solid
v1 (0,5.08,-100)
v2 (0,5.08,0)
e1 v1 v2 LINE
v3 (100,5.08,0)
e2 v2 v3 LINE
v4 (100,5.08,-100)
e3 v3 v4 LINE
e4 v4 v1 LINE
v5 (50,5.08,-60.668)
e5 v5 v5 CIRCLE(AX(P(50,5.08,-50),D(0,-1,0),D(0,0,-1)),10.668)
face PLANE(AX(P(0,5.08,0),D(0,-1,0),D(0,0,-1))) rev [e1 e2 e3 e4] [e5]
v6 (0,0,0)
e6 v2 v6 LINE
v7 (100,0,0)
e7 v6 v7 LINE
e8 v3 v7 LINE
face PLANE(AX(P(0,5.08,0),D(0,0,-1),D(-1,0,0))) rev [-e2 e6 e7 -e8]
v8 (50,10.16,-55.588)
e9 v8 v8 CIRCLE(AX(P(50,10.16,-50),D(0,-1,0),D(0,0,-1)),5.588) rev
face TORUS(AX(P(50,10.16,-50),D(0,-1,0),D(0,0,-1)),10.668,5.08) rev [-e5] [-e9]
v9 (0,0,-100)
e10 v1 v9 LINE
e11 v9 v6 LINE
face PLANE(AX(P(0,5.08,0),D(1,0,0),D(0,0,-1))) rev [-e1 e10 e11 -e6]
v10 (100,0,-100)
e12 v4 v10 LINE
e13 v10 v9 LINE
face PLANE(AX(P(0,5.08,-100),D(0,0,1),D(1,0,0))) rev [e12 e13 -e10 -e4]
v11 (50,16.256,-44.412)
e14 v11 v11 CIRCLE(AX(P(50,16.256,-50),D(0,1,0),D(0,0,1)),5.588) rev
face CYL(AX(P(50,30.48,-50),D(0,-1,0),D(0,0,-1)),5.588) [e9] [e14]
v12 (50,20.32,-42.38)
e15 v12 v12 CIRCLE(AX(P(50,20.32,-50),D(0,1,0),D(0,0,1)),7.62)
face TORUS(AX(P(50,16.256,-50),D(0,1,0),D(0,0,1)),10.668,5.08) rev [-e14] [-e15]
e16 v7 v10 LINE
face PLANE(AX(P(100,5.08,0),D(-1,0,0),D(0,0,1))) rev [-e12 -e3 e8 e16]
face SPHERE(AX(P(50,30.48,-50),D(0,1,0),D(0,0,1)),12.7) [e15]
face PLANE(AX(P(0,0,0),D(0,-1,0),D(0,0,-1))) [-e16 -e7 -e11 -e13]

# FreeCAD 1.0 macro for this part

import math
import FreeCAD as App
import Part
import Sketcher
Q = App.Units.Quantity


def edges_at(feature, points):
    """Names of the edges that pass closest to the given points."""
    edges = feature.Shape.Edges
    near = lambda p: min(range(len(edges)), key=lambda i: edges[i].distToShape(Part.Vertex(*p))[0])
    return sorted({f"Edge{near(p) + 1}" for p in points})

doc = App.newDocument("Part")
body = doc.addObject("PartDesign::Body", "Body")

sketch1 = body.newObject("Sketcher::SketchObject", "Sketch")
sketch1.AttachmentSupport = (doc.getObject("XZ_Plane"), [""])
sketch1.MapMode = "FlatFace"
sketch1.addGeometry([
    Part.LineSegment(App.Vector(0, -100, 0), App.Vector(0, 0, 0)),
    Part.LineSegment(App.Vector(0, 0, 0), App.Vector(100, 0, 0)),
    Part.LineSegment(App.Vector(100, 0, 0), App.Vector(100, -100, 0)),
    Part.LineSegment(App.Vector(100, -100, 0), App.Vector(0, -100, 0)),
], False)
sketch1.addConstraint([
    Sketcher.Constraint("Coincident", 0, 2, 1, 1),
    Sketcher.Constraint("Coincident", 1, 2, 2, 1),
    Sketcher.Constraint("Coincident", 2, 2, 3, 1),
    Sketcher.Constraint("Coincident", 3, 2, 0, 1),
    Sketcher.Constraint("Vertical", 0),
    Sketcher.Constraint("Horizontal", 1),
    Sketcher.Constraint("Vertical", 2),
    Sketcher.Constraint("Horizontal", 3),
    Sketcher.Constraint("Coincident", 0, 2, -1, 1),
    Sketcher.Constraint("Equal", 3, 0),
    Sketcher.Constraint("DistanceX", 1, 1, 1, 2, Q("100 mm")),
])
pad1 = body.newObject("PartDesign::Pad", "Pad")
pad1.Profile = sketch1
pad1.Length = Q("0.2 in")
pad1.Reversed = True

sketch2 = body.newObject("Sketcher::SketchObject", "Sketch001")
sketch2.AttachmentSupport = (doc.getObject("XZ_Plane"), [""])
sketch2.MapMode = "FlatFace"
sketch2.AttachmentOffset = App.Placement(App.Vector(0, 0, -0.2 * 25.4), App.Rotation())
sketch2.addGeometry(Part.Circle(App.Vector(50, -50, 0), App.Vector(0, 0, 1), 6), False)
sketch2.addConstraint([
    Sketcher.Constraint("Diameter", 0, Q("0.44 in")),
    Sketcher.Constraint("DistanceX", -1, 1, 0, 3, Q("50 mm")),
    Sketcher.Constraint("DistanceY", 0, 3, -1, 1, Q("50 mm")),
])
pad2 = body.newObject("PartDesign::Pad", "Pad001")
pad2.Profile = sketch2
pad2.Length = Q("1 in")
pad2.Reversed = True

sketch3 = body.newObject("Sketcher::SketchObject", "Sketch002")
sketch3.AttachmentSupport = (doc.getObject("XZ_Plane"), [""])
sketch3.MapMode = "FlatFace"
sketch3.AttachmentOffset = App.Placement(App.Vector(0, 0, -1.2 * 25.4), App.Rotation())
sketch3.addGeometry([
    Part.LineSegment(App.Vector(50, -63, 0), App.Vector(50, -37, 0)),
    Part.ArcOfCircle(Part.Circle(App.Vector(50, -50, 0), App.Vector(0, 0, 1), 13), math.radians(-90), math.radians(90)),
], False)
sketch3.addGeometry(Part.LineSegment(App.Vector(50, -63, 0), App.Vector(50, -37, 0)), True)
sketch3.addConstraint([
    Sketcher.Constraint("Coincident", 0, 1, 1, 1),
    Sketcher.Constraint("Coincident", 1, 2, 0, 2),
    Sketcher.Constraint("Vertical", 0),
    Sketcher.Constraint("Vertical", 2),
    Sketcher.Constraint("Coincident", 2, 1, 0, 1),
    Sketcher.Constraint("Vertical", 1, 3, 0, 1),
    Sketcher.Constraint("Equal", 0, 2),
    Sketcher.Constraint("Radius", 1, Q("0.5 in")),
    Sketcher.Constraint("DistanceX", -1, 1, 1, 3, Q("50 mm")),
    Sketcher.Constraint("DistanceY", 1, 3, -1, 1, Q("50 mm")),
])
revolution = body.newObject("PartDesign::Revolution", "Revolution")
revolution.Profile = sketch3
revolution.ReferenceAxis = (sketch3, ["Axis0"])
revolution.Angle = 360
doc.recompute()

fillet = body.newObject("PartDesign::Fillet", "Fillet")
fillet.Base = (revolution, edges_at(revolution, [(50, 5.08, -44.412), (50, 19.075, -44.412)]))
fillet.Radius = Q("0.2 in")

doc.recompute()
